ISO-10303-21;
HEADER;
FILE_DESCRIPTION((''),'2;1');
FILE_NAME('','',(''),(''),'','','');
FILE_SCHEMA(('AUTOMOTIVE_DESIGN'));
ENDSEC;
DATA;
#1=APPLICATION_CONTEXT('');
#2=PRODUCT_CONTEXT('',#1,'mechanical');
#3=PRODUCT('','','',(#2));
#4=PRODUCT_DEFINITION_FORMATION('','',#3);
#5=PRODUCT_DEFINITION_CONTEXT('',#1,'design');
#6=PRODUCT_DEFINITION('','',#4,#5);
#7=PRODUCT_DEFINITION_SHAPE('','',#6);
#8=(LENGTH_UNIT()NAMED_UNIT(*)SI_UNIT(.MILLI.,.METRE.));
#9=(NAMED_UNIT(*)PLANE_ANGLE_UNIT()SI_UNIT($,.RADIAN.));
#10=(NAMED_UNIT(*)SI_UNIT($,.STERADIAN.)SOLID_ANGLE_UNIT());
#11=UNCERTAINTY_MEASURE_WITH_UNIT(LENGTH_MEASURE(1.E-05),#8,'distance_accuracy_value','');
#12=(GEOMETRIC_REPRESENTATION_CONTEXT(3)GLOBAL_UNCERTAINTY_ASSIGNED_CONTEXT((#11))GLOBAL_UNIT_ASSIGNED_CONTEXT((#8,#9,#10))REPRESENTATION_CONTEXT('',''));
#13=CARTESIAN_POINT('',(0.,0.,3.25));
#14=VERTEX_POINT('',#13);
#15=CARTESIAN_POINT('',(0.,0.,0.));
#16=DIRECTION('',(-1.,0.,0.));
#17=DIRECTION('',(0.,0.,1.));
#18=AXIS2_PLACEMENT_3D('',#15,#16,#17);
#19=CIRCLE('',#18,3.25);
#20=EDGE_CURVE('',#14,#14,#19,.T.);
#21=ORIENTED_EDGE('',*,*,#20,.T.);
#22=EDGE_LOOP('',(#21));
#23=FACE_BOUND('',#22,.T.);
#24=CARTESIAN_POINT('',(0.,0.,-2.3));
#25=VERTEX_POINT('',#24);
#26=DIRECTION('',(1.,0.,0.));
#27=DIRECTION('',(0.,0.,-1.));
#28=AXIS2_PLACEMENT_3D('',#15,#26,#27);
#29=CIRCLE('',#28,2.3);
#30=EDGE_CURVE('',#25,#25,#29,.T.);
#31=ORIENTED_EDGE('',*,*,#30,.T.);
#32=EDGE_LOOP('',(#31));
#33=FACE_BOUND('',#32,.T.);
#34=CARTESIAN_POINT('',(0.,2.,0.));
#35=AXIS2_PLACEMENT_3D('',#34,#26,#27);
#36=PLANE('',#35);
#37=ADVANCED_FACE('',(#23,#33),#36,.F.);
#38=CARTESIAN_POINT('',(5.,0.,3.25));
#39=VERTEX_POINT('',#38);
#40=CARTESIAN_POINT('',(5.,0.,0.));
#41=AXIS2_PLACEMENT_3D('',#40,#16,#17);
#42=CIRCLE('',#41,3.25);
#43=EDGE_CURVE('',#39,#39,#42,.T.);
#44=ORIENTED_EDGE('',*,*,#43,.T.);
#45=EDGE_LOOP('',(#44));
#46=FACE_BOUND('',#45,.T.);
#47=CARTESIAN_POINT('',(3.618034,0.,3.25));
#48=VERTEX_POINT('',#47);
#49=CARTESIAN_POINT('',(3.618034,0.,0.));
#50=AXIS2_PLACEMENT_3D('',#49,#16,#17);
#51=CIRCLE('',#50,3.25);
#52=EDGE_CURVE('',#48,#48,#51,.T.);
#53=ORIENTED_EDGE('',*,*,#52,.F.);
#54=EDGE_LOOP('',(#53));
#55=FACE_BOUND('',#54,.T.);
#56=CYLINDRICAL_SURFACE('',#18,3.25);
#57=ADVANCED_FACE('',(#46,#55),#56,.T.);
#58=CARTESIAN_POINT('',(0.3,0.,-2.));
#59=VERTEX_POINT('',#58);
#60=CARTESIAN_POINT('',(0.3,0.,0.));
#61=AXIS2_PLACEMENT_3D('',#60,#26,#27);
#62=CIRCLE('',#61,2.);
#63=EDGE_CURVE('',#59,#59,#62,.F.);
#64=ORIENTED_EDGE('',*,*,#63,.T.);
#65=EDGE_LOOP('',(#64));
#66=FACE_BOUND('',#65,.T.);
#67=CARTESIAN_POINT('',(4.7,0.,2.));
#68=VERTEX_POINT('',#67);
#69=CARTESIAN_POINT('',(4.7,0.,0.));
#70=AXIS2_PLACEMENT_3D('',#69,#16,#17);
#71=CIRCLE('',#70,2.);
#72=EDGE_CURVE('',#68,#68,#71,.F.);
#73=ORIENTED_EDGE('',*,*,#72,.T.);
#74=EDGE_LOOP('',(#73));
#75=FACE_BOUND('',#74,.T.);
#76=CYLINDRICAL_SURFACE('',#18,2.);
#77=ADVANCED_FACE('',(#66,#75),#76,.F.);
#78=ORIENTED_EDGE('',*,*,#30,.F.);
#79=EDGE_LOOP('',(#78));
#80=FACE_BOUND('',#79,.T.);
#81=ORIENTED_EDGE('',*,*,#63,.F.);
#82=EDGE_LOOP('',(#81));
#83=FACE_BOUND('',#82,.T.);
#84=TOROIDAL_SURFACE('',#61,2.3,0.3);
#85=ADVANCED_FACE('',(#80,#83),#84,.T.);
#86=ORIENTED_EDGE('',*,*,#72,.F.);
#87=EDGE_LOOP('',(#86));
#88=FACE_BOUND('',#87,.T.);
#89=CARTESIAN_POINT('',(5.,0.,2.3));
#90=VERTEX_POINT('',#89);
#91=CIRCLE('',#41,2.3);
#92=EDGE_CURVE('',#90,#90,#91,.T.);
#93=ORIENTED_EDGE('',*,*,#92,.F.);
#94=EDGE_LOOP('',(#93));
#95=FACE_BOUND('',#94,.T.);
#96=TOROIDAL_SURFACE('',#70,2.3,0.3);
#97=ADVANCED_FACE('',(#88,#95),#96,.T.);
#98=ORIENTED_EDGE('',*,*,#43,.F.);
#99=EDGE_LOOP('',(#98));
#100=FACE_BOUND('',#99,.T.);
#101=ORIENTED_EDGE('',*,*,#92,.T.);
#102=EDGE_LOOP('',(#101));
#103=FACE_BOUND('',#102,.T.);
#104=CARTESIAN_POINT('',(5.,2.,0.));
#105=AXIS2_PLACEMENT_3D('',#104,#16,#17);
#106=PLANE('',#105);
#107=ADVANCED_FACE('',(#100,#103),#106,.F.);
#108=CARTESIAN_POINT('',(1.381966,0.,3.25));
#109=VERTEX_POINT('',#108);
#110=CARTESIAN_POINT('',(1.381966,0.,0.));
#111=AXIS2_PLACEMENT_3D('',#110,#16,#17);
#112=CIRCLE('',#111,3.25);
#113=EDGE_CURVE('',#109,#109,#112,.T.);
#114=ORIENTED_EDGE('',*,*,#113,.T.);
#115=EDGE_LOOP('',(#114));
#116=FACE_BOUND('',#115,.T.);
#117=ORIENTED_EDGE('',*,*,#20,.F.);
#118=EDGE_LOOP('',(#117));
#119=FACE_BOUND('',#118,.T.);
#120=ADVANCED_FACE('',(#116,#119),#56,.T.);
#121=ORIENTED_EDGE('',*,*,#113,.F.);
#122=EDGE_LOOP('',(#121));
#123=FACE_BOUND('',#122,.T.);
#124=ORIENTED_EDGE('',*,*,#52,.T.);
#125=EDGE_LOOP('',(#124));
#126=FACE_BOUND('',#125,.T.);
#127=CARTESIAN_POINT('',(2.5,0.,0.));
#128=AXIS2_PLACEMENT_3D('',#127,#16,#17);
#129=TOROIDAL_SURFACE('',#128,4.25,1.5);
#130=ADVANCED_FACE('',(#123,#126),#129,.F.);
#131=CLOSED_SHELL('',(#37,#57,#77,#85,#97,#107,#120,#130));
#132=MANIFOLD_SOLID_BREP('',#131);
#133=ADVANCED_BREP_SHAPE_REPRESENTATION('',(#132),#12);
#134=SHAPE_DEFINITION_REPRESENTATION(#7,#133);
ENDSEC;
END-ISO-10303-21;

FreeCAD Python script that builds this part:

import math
import FreeCAD as App
import Part
import Sketcher
from FreeCAD import Vector


def edges_at(feature, points):
    """Names of the edges that pass closest to the given points."""
    edges = feature.Shape.Edges
    near = lambda p: min(range(len(edges)), key=lambda i: edges[i].distToShape(Part.Vertex(*p))[0])
    return sorted({f"Edge{near(p) + 1}" for p in points})

doc = App.newDocument("Part")
body = doc.addObject("PartDesign::Body", "Body")

# Sketch on XY plane
sketch1 = doc.addObject("Sketcher::SketchObject", "Sketch")
body.addObject(sketch1)
sketch1.AttachmentSupport = (doc.XY_Plane, [""])
sketch1.MapMode = "FlatFace"
sketch1.addGeometry([
    Part.LineSegment(Vector(5, 3.25, 0), Vector(3.618034, 3.25, 0)),  # 0
    Part.ArcOfCircle(Part.Circle(Vector(2.5, 4.25, 0), Vector(0, 0, 1), 1.5), math.radians(-138.189685), math.radians(-41.810315)),  # 1
    Part.LineSegment(Vector(1.381966, 3.25, 0), Vector(0, 3.25, 0)),  # 2
    Part.LineSegment(Vector(0, 3.25, 0), Vector(0, 2, 0)),  # 3
    Part.LineSegment(Vector(0, 2, 0), Vector(5, 2, 0)),  # 4
    Part.LineSegment(Vector(5, 2, 0), Vector(5, 3.25, 0)),  # 5
], False)
sketch1.addConstraint([
    Sketcher.Constraint("Coincident", 0, 2, 1, 2),
    Sketcher.Constraint("Coincident", 1, 1, 2, 1),
    Sketcher.Constraint("Coincident", 2, 2, 3, 1),
    Sketcher.Constraint("Coincident", 3, 2, 4, 1),
    Sketcher.Constraint("Coincident", 4, 2, 5, 1),
    Sketcher.Constraint("Coincident", 5, 2, 0, 1),
    Sketcher.Constraint("Horizontal", 0),
    Sketcher.Constraint("Horizontal", 2),
    Sketcher.Constraint("Vertical", 3),
    Sketcher.Constraint("Horizontal", 4),
    Sketcher.Constraint("Vertical", 5),
    Sketcher.Constraint("PointOnObject", 2, 2, -2),
    Sketcher.Constraint("Horizontal", 0, 2, 1, 1),
    Sketcher.Constraint("Equal", 0, 2),
    Sketcher.Constraint("Radius", 1, 1.5),
    Sketcher.Constraint("DistanceX", 4, 1, 4, 2, 5.0),
    Sketcher.Constraint("DistanceY", -1, 1, 3, 2, 2.0),
    Sketcher.Constraint("DistanceY", 0, 2, 1, 3, 1.0),
    Sketcher.Constraint("DistanceY", 3, 2, 3, 1, 1.25),
])
revolution = doc.addObject("PartDesign::Revolution", "Revolution")
body.addObject(revolution)
revolution.Profile = sketch1
revolution.ReferenceAxis = (sketch1, ["H_Axis"])
revolution.Angle = 360
doc.recompute()

fillet = doc.addObject("PartDesign::Fillet", "Fillet")
body.addObject(fillet)
fillet.Base = (revolution, edges_at(revolution, [(5, -2, 0), (0, -2, 0)]))
fillet.Radius = 0.3

doc.recompute()
